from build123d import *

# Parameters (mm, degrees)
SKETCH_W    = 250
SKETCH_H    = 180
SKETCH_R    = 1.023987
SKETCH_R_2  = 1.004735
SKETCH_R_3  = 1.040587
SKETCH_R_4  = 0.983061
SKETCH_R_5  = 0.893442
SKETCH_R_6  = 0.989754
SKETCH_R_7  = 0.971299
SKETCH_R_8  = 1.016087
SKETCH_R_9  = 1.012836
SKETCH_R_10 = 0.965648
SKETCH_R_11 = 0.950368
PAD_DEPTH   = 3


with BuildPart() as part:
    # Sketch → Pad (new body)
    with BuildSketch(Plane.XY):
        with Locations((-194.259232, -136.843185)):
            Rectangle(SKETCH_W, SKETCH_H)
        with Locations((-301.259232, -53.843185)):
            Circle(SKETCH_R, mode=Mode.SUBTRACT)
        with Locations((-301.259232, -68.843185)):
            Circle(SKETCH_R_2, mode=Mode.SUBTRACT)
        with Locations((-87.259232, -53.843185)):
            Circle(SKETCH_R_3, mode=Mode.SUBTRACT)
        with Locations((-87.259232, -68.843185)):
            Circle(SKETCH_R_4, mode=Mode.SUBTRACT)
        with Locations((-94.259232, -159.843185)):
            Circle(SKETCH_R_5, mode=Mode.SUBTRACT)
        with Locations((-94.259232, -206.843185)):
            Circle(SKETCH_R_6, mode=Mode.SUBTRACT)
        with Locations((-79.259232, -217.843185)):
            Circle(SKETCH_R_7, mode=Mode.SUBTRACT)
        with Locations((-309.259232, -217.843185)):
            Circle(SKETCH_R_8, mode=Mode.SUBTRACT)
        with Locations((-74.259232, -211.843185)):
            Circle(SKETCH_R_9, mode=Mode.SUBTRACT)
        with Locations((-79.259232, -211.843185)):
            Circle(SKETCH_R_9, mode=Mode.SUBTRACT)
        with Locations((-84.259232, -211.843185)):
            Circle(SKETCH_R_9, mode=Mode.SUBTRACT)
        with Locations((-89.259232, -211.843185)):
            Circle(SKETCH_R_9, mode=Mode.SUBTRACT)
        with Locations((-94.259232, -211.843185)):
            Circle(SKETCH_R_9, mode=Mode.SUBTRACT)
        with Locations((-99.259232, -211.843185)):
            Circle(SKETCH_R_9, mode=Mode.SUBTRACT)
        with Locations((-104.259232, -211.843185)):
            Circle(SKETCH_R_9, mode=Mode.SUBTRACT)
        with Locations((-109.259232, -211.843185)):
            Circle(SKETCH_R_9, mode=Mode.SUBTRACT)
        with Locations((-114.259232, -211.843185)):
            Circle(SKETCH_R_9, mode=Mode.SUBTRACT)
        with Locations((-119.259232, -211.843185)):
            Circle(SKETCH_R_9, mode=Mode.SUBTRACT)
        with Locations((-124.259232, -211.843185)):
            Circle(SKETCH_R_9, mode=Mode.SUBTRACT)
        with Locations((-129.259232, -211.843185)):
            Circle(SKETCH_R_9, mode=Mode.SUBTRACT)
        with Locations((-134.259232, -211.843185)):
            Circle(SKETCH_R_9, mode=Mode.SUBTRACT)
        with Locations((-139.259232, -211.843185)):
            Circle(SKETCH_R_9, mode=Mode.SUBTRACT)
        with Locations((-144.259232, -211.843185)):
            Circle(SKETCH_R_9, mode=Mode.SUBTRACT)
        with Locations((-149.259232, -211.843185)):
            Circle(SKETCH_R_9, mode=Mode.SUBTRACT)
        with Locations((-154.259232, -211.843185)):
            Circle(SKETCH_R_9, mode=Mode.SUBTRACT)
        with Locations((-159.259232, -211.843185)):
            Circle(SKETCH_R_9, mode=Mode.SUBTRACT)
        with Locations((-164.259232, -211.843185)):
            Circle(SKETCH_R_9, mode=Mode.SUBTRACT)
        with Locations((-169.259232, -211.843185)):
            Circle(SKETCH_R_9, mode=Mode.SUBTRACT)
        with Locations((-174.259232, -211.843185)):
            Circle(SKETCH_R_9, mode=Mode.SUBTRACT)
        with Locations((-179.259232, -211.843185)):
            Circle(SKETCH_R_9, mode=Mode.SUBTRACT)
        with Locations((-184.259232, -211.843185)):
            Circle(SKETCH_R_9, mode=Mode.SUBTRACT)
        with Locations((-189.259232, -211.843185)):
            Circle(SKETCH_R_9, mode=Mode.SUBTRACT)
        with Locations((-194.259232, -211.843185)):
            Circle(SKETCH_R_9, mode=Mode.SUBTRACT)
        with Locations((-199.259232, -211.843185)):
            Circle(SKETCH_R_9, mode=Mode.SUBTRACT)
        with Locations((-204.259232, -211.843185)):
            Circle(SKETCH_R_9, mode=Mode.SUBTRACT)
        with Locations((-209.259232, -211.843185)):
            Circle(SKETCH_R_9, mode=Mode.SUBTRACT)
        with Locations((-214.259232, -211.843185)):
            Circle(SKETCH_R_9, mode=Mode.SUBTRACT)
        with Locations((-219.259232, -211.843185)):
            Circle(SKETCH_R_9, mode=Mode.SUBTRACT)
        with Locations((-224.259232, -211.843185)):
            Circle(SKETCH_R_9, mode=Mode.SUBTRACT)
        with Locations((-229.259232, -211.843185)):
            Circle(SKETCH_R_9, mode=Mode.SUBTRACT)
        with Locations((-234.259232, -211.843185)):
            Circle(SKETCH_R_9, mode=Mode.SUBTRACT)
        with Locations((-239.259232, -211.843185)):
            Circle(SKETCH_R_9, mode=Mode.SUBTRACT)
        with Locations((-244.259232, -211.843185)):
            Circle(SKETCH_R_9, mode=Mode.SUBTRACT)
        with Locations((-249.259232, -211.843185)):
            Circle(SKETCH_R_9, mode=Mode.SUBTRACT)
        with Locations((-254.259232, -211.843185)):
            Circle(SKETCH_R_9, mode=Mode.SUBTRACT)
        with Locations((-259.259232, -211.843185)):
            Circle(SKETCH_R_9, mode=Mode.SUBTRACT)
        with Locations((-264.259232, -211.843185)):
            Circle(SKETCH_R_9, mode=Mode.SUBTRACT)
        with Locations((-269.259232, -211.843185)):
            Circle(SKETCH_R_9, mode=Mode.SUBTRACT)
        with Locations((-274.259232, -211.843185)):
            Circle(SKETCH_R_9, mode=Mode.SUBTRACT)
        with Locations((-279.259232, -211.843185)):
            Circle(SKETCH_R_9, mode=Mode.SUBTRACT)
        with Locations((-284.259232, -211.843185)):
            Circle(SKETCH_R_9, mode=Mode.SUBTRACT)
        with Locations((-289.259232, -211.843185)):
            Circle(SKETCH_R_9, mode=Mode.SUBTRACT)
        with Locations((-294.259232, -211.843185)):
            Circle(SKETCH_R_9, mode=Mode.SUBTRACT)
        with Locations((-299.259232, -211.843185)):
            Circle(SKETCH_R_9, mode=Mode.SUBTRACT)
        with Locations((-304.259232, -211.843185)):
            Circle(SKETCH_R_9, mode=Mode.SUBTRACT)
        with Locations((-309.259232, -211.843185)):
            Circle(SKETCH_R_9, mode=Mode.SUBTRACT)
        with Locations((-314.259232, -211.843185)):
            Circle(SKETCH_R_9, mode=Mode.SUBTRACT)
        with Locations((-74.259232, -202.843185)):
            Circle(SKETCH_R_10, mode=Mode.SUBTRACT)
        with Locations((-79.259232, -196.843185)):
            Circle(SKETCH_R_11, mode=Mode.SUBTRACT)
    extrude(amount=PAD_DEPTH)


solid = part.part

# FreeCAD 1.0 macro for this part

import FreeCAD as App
import Part
import Sketcher

V = App.Vector


def add_polygon(sketch, points):
    """Adds a closed chain of lines whose ends are joined by coincident constraints."""
    first, n = sketch.GeometryCount, len(points)
    for a, b in zip(points, points[1:] + points[:1]):
        sketch.addGeometry(Part.LineSegment(App.Vector(*a, 0), App.Vector(*b, 0)), False)
    for i in range(n):
        sketch.addConstraint(Sketcher.Constraint("Coincident", first + i, 2, first + (i + 1) % n, 1))

doc = App.newDocument("Part")
params = doc.addObject("Spreadsheet::Sheet", "Params")
for row, (alias, value) in enumerate([
    ("sketch1_width", "250 mm"),
    ("sketch1_height", "180 mm"),
    ("pad1_length", "3 mm"),
], start=1):
    params.set(f"A{row}", alias)
    params.set(f"B{row}", "=" + value)
    params.setAlias(f"B{row}", alias)

body = doc.addObject("PartDesign::Body", "Body")

sketch1 = body.newObject("Sketcher::SketchObject", "Sketch")
sketch1.AttachmentSupport = (doc.getObject("XY_Plane"), [""])
sketch1.MapMode = "FlatFace"
add_polygon(sketch1, [(-319.3, -46.8), (-319.3, -226.8), (-69.3, -226.8), (-69.3, -46.8)])
sketch1.addGeometry(Part.Circle(V(-309.3, -217.8, 0), V(0, 0, 1), 1), False)
sketch1.addGeometry(Part.Circle(V(-314.3, -211.8, 0), V(0, 0, 1), 1), False)
sketch1.addGeometry(Part.Circle(V(-309.3, -211.8, 0), V(0, 0, 1), 1), False)
sketch1.addGeometry(Part.Circle(V(-304.3, -211.8, 0), V(0, 0, 1), 1), False)
sketch1.addGeometry(Part.Circle(V(-299.3, -211.8, 0), V(0, 0, 1), 1), False)
sketch1.addGeometry(Part.Circle(V(-294.3, -211.8, 0), V(0, 0, 1), 1), False)
sketch1.addGeometry(Part.Circle(V(-289.3, -211.8, 0), V(0, 0, 1), 1), False)
sketch1.addGeometry(Part.Circle(V(-284.3, -211.8, 0), V(0, 0, 1), 1), False)
sketch1.addGeometry(Part.Circle(V(-279.3, -211.8, 0), V(0, 0, 1), 1), False)
sketch1.addGeometry(Part.Circle(V(-274.3, -211.8, 0), V(0, 0, 1), 1), False)
sketch1.addGeometry(Part.Circle(V(-269.3, -211.8, 0), V(0, 0, 1), 1), False)
sketch1.addGeometry(Part.Circle(V(-264.3, -211.8, 0), V(0, 0, 1), 1), False)
sketch1.addGeometry(Part.Circle(V(-259.3, -211.8, 0), V(0, 0, 1), 1), False)
sketch1.addGeometry(Part.Circle(V(-254.3, -211.8, 0), V(0, 0, 1), 1), False)
sketch1.addGeometry(Part.Circle(V(-249.3, -211.8, 0), V(0, 0, 1), 1), False)
sketch1.addGeometry(Part.Circle(V(-244.3, -211.8, 0), V(0, 0, 1), 1), False)
sketch1.addGeometry(Part.Circle(V(-239.3, -211.8, 0), V(0, 0, 1), 1), False)
sketch1.addGeometry(Part.Circle(V(-234.3, -211.8, 0), V(0, 0, 1), 1), False)
sketch1.addGeometry(Part.Circle(V(-229.3, -211.8, 0), V(0, 0, 1), 1), False)
sketch1.addGeometry(Part.Circle(V(-224.3, -211.8, 0), V(0, 0, 1), 1), False)
sketch1.addGeometry(Part.Circle(V(-219.3, -211.8, 0), V(0, 0, 1), 1), False)
sketch1.addGeometry(Part.Circle(V(-214.3, -211.8, 0), V(0, 0, 1), 1), False)
sketch1.addGeometry(Part.Circle(V(-209.3, -211.8, 0), V(0, 0, 1), 1), False)
sketch1.addGeometry(Part.Circle(V(-204.3, -211.8, 0), V(0, 0, 1), 1), False)
sketch1.addGeometry(Part.Circle(V(-199.3, -211.8, 0), V(0, 0, 1), 1), False)
sketch1.addGeometry(Part.Circle(V(-194.3, -211.8, 0), V(0, 0, 1), 1), False)
sketch1.addGeometry(Part.Circle(V(-189.3, -211.8, 0), V(0, 0, 1), 1), False)
sketch1.addGeometry(Part.Circle(V(-184.3, -211.8, 0), V(0, 0, 1), 1), False)
sketch1.addGeometry(Part.Circle(V(-179.3, -211.8, 0), V(0, 0, 1), 1), False)
sketch1.addGeometry(Part.Circle(V(-174.3, -211.8, 0), V(0, 0, 1), 1), False)
sketch1.addGeometry(Part.Circle(V(-169.3, -211.8, 0), V(0, 0, 1), 1), False)
sketch1.addGeometry(Part.Circle(V(-164.3, -211.8, 0), V(0, 0, 1), 1), False)
sketch1.addGeometry(Part.Circle(V(-159.3, -211.8, 0), V(0, 0, 1), 1), False)
sketch1.addGeometry(Part.Circle(V(-154.3, -211.8, 0), V(0, 0, 1), 1), False)
sketch1.addGeometry(Part.Circle(V(-149.3, -211.8, 0), V(0, 0, 1), 1), False)
sketch1.addGeometry(Part.Circle(V(-144.3, -211.8, 0), V(0, 0, 1), 1), False)
sketch1.addGeometry(Part.Circle(V(-139.3, -211.8, 0), V(0, 0, 1), 1), False)
sketch1.addGeometry(Part.Circle(V(-134.3, -211.8, 0), V(0, 0, 1), 1), False)
sketch1.addGeometry(Part.Circle(V(-129.3, -211.8, 0), V(0, 0, 1), 1), False)
sketch1.addGeometry(Part.Circle(V(-124.3, -211.8, 0), V(0, 0, 1), 1), False)
sketch1.addGeometry(Part.Circle(V(-119.3, -211.8, 0), V(0, 0, 1), 1), False)
sketch1.addGeometry(Part.Circle(V(-114.3, -211.8, 0), V(0, 0, 1), 1), False)
sketch1.addGeometry(Part.Circle(V(-109.3, -211.8, 0), V(0, 0, 1), 1), False)
sketch1.addGeometry(Part.Circle(V(-104.3, -211.8, 0), V(0, 0, 1), 1), False)
sketch1.addGeometry(Part.Circle(V(-99.3, -211.8, 0), V(0, 0, 1), 1), False)
sketch1.addGeometry(Part.Circle(V(-94.3, -211.8, 0), V(0, 0, 1), 1), False)
sketch1.addGeometry(Part.Circle(V(-89.3, -211.8, 0), V(0, 0, 1), 1), False)
sketch1.addGeometry(Part.Circle(V(-79.3, -217.8, 0), V(0, 0, 1), 1), False)
sketch1.addGeometry(Part.Circle(V(-84.3, -211.8, 0), V(0, 0, 1), 1), False)
sketch1.addGeometry(Part.Circle(V(-79.3, -211.8, 0), V(0, 0, 1), 1), False)
sketch1.addGeometry(Part.Circle(V(-74.3, -211.8, 0), V(0, 0, 1), 1), False)
sketch1.addGeometry(Part.Circle(V(-94.3, -206.8, 0), V(0, 0, 1), 1), False)
sketch1.addGeometry(Part.Circle(V(-74.3, -202.8, 0), V(0, 0, 1), 1), False)
sketch1.addGeometry(Part.Circle(V(-79.3, -196.8, 0), V(0, 0, 1), 1), False)
sketch1.addGeometry(Part.Circle(V(-94.3, -159.8, 0), V(0, 0, 1), 0.9), False)
sketch1.addGeometry(Part.Circle(V(-301.3, -68.8, 0), V(0, 0, 1), 1), False)
sketch1.addGeometry(Part.Circle(V(-301.3, -53.8, 0), V(0, 0, 1), 1), False)
sketch1.addGeometry(Part.Circle(V(-87.3, -68.8, 0), V(0, 0, 1), 1), False)
sketch1.addGeometry(Part.Circle(V(-87.3, -53.8, 0), V(0, 0, 1), 1), False)
sketch1.addConstraint(Sketcher.Constraint("Vertical", 0))
sketch1.addConstraint(Sketcher.Constraint("Horizontal", 1))
sketch1.addConstraint(Sketcher.Constraint("Vertical", 2))
sketch1.addConstraint(Sketcher.Constraint("Horizontal", 3))
sketch1.addConstraint(Sketcher.Constraint("Equal", 5, 6))
sketch1.addConstraint(Sketcher.Constraint("Equal", 6, 7))
sketch1.addConstraint(Sketcher.Constraint("Equal", 7, 8))
sketch1.addConstraint(Sketcher.Constraint("Equal", 8, 9))
sketch1.addConstraint(Sketcher.Constraint("Equal", 9, 10))
sketch1.addConstraint(Sketcher.Constraint("Equal", 10, 11))
sketch1.addConstraint(Sketcher.Constraint("Equal", 11, 12))
sketch1.addConstraint(Sketcher.Constraint("Equal", 12, 13))
sketch1.addConstraint(Sketcher.Constraint("Equal", 13, 14))
sketch1.addConstraint(Sketcher.Constraint("Equal", 14, 15))
sketch1.addConstraint(Sketcher.Constraint("Equal", 15, 16))
sketch1.addConstraint(Sketcher.Constraint("Equal", 16, 17))
sketch1.addConstraint(Sketcher.Constraint("Equal", 17, 18))
sketch1.addConstraint(Sketcher.Constraint("Equal", 18, 19))
sketch1.addConstraint(Sketcher.Constraint("Equal", 19, 20))
sketch1.addConstraint(Sketcher.Constraint("Equal", 20, 21))
sketch1.addConstraint(Sketcher.Constraint("Equal", 21, 22))
sketch1.addConstraint(Sketcher.Constraint("Equal", 22, 23))
sketch1.addConstraint(Sketcher.Constraint("Equal", 23, 24))
sketch1.addConstraint(Sketcher.Constraint("Equal", 24, 25))
sketch1.addConstraint(Sketcher.Constraint("Equal", 25, 26))
sketch1.addConstraint(Sketcher.Constraint("Equal", 26, 27))
sketch1.addConstraint(Sketcher.Constraint("Equal", 27, 28))
sketch1.addConstraint(Sketcher.Constraint("Equal", 28, 29))
sketch1.addConstraint(Sketcher.Constraint("Equal", 29, 30))
sketch1.addConstraint(Sketcher.Constraint("Equal", 30, 31))
sketch1.addConstraint(Sketcher.Constraint("Equal", 31, 32))
sketch1.addConstraint(Sketcher.Constraint("Equal", 32, 33))
sketch1.addConstraint(Sketcher.Constraint("Equal", 33, 34))
sketch1.addConstraint(Sketcher.Constraint("Equal", 34, 35))
sketch1.addConstraint(Sketcher.Constraint("Equal", 35, 36))
sketch1.addConstraint(Sketcher.Constraint("Equal", 36, 37))
sketch1.addConstraint(Sketcher.Constraint("Equal", 37, 38))
sketch1.addConstraint(Sketcher.Constraint("Equal", 38, 39))
sketch1.addConstraint(Sketcher.Constraint("Equal", 39, 40))
sketch1.addConstraint(Sketcher.Constraint("Equal", 40, 41))
sketch1.addConstraint(Sketcher.Constraint("Equal", 41, 42))
sketch1.addConstraint(Sketcher.Constraint("Equal", 42, 43))
sketch1.addConstraint(Sketcher.Constraint("Equal", 43, 44))
sketch1.addConstraint(Sketcher.Constraint("Equal", 44, 45))
sketch1.addConstraint(Sketcher.Constraint("Equal", 45, 46))
sketch1.addConstraint(Sketcher.Constraint("Equal", 46, 47))
sketch1.addConstraint(Sketcher.Constraint("Equal", 47, 48))
sketch1.addConstraint(Sketcher.Constraint("Equal", 48, 49))
sketch1.addConstraint(Sketcher.Constraint("Equal", 49, 50))
sketch1.addConstraint(Sketcher.Constraint("Equal", 50, 52))
sketch1.addConstraint(Sketcher.Constraint("Equal", 52, 53))
sketch1.addConstraint(Sketcher.Constraint("Equal", 53, 54))
sketch1.addConstraint(Sketcher.Constraint("Horizontal", 5, 3, 6, 3))
sketch1.addConstraint(Sketcher.Constraint("Horizontal", 6, 3, 7, 3))
sketch1.addConstraint(Sketcher.Constraint("Horizontal", 7, 3, 8, 3))
sketch1.addConstraint(Sketcher.Constraint("Horizontal", 8, 3, 9, 3))
sketch1.addConstraint(Sketcher.Constraint("Horizontal", 9, 3, 10, 3))
sketch1.addConstraint(Sketcher.Constraint("Horizontal", 10, 3, 11, 3))
sketch1.addConstraint(Sketcher.Constraint("Horizontal", 11, 3, 12, 3))
sketch1.addConstraint(Sketcher.Constraint("Horizontal", 12, 3, 13, 3))
sketch1.addConstraint(Sketcher.Constraint("Horizontal", 13, 3, 14, 3))
sketch1.addConstraint(Sketcher.Constraint("Horizontal", 14, 3, 15, 3))
sketch1.addConstraint(Sketcher.Constraint("Horizontal", 15, 3, 16, 3))
sketch1.addConstraint(Sketcher.Constraint("Horizontal", 16, 3, 17, 3))
sketch1.addConstraint(Sketcher.Constraint("Horizontal", 17, 3, 18, 3))
sketch1.addConstraint(Sketcher.Constraint("Horizontal", 18, 3, 19, 3))
sketch1.addConstraint(Sketcher.Constraint("Horizontal", 19, 3, 20, 3))
sketch1.addConstraint(Sketcher.Constraint("Horizontal", 20, 3, 21, 3))
sketch1.addConstraint(Sketcher.Constraint("Horizontal", 21, 3, 22, 3))
sketch1.addConstraint(Sketcher.Constraint("Horizontal", 22, 3, 23, 3))
sketch1.addConstraint(Sketcher.Constraint("Horizontal", 23, 3, 24, 3))
sketch1.addConstraint(Sketcher.Constraint("Horizontal", 24, 3, 25, 3))
sketch1.addConstraint(Sketcher.Constraint("Horizontal", 25, 3, 26, 3))
sketch1.addConstraint(Sketcher.Constraint("Horizontal", 26, 3, 27, 3))
sketch1.addConstraint(Sketcher.Constraint("Horizontal", 27, 3, 28, 3))
sketch1.addConstraint(Sketcher.Constraint("Horizontal", 28, 3, 29, 3))
sketch1.addConstraint(Sketcher.Constraint("Horizontal", 29, 3, 30, 3))
sketch1.addConstraint(Sketcher.Constraint("Horizontal", 30, 3, 31, 3))
sketch1.addConstraint(Sketcher.Constraint("Horizontal", 31, 3, 32, 3))
sketch1.addConstraint(Sketcher.Constraint("Horizontal", 32, 3, 33, 3))
sketch1.addConstraint(Sketcher.Constraint("Horizontal", 33, 3, 34, 3))
sketch1.addConstraint(Sketcher.Constraint("Horizontal", 34, 3, 35, 3))
sketch1.addConstraint(Sketcher.Constraint("Horizontal", 35, 3, 36, 3))
sketch1.addConstraint(Sketcher.Constraint("Horizontal", 36, 3, 37, 3))
sketch1.addConstraint(Sketcher.Constraint("Horizontal", 37, 3, 38, 3))
sketch1.addConstraint(Sketcher.Constraint("Horizontal", 38, 3, 39, 3))
sketch1.addConstraint(Sketcher.Constraint("Horizontal", 39, 3, 40, 3))
sketch1.addConstraint(Sketcher.Constraint("Horizontal", 40, 3, 41, 3))
sketch1.addConstraint(Sketcher.Constraint("Horizontal", 41, 3, 42, 3))
sketch1.addConstraint(Sketcher.Constraint("Horizontal", 42, 3, 43, 3))
sketch1.addConstraint(Sketcher.Constraint("Horizontal", 43, 3, 44, 3))
sketch1.addConstraint(Sketcher.Constraint("Horizontal", 44, 3, 45, 3))
sketch1.addConstraint(Sketcher.Constraint("Horizontal", 45, 3, 46, 3))
sketch1.addConstraint(Sketcher.Constraint("Horizontal", 46, 3, 47, 3))
sketch1.addConstraint(Sketcher.Constraint("Horizontal", 47, 3, 48, 3))
sketch1.addConstraint(Sketcher.Constraint("Horizontal", 48, 3, 49, 3))
sketch1.addConstraint(Sketcher.Constraint("Horizontal", 49, 3, 50, 3))
sketch1.addConstraint(Sketcher.Constraint("Horizontal", 4, 3, 51, 3))
sketch1.addConstraint(Sketcher.Constraint("Horizontal", 50, 3, 52, 3))
sketch1.addConstraint(Sketcher.Constraint("Horizontal", 52, 3, 53, 3))
sketch1.addConstraint(Sketcher.Constraint("Horizontal", 53, 3, 54, 3))
sketch1.addConstraint(Sketcher.Constraint("Horizontal", 59, 3, 61, 3))
sketch1.addConstraint(Sketcher.Constraint("Horizontal", 60, 3, 62, 3))
sketch1.addConstraint(Sketcher.Constraint("Vertical", 4, 3, 6, 3))
sketch1.addConstraint(Sketcher.Constraint("Vertical", 51, 3, 53, 3))
sketch1.addConstraint(Sketcher.Constraint("Vertical", 49, 3, 55, 3))
sketch1.addConstraint(Sketcher.Constraint("Vertical", 54, 3, 56, 3))
sketch1.addConstraint(Sketcher.Constraint("Vertical", 53, 3, 57, 3))
sketch1.addConstraint(Sketcher.Constraint("Vertical", 55, 3, 58, 3))
sketch1.addConstraint(Sketcher.Constraint("Vertical", 59, 3, 60, 3))
sketch1.addConstraint(Sketcher.Constraint("Vertical", 61, 3, 62, 3))
sketch1.addConstraint(Sketcher.Constraint("DistanceX", 1, 1, 1, 2, 250.0))
sketch1.addConstraint(Sketcher.Constraint("DistanceY", 0, 2, 0, 1, 180.0))
sketch1.addConstraint(Sketcher.Constraint("Diameter", 59, 2.00947))
sketch1.addConstraint(Sketcher.Constraint("Diameter", 61, 1.966122))
sketch1.addConstraint(Sketcher.Constraint("Diameter", 4, 2.032174))
sketch1.addConstraint(Sketcher.Constraint("Diameter", 5, 2.025672))
sketch1.addConstraint(Sketcher.Constraint("Diameter", 51, 1.942598))
sketch1.addConstraint(Sketcher.Constraint("Diameter", 55, 1.979508))
sketch1.addConstraint(Sketcher.Constraint("Diameter", 56, 1.931296))
sketch1.addConstraint(Sketcher.Constraint("Diameter", 57, 1.900736))
sketch1.addConstraint(Sketcher.Constraint("Diameter", 58, 1.786884))
sketch1.addConstraint(Sketcher.Constraint("Diameter", 60, 2.047974))
sketch1.addConstraint(Sketcher.Constraint("Diameter", 62, 2.081174))
sketch1.addConstraint(Sketcher.Constraint("DistanceX", 4, 3, -1, 1, 309.259232))
sketch1.addConstraint(Sketcher.Constraint("DistanceX", 5, 3, -1, 1, 314.259232))
sketch1.addConstraint(Sketcher.Constraint("DistanceX", 7, 3, -1, 1, 304.259232))
sketch1.addConstraint(Sketcher.Constraint("DistanceX", 8, 3, -1, 1, 299.259232))
sketch1.addConstraint(Sketcher.Constraint("DistanceX", 9, 3, -1, 1, 294.259232))
sketch1.addConstraint(Sketcher.Constraint("DistanceX", 10, 3, -1, 1, 289.259232))
sketch1.addConstraint(Sketcher.Constraint("DistanceX", 11, 3, -1, 1, 284.259232))
sketch1.addConstraint(Sketcher.Constraint("DistanceX", 12, 3, -1, 1, 279.259232))
sketch1.addConstraint(Sketcher.Constraint("DistanceX", 13, 3, -1, 1, 274.259232))
sketch1.addConstraint(Sketcher.Constraint("DistanceX", 14, 3, -1, 1, 269.259232))
sketch1.addConstraint(Sketcher.Constraint("DistanceX", 15, 3, -1, 1, 264.259232))
sketch1.addConstraint(Sketcher.Constraint("DistanceX", 16, 3, -1, 1, 259.259232))
sketch1.addConstraint(Sketcher.Constraint("DistanceX", 17, 3, -1, 1, 254.259232))
sketch1.addConstraint(Sketcher.Constraint("DistanceX", 18, 3, -1, 1, 249.259232))
sketch1.addConstraint(Sketcher.Constraint("DistanceX", 19, 3, -1, 1, 244.259232))
sketch1.addConstraint(Sketcher.Constraint("DistanceX", 20, 3, -1, 1, 239.259232))
sketch1.addConstraint(Sketcher.Constraint("DistanceX", 21, 3, -1, 1, 234.259232))
sketch1.addConstraint(Sketcher.Constraint("DistanceX", 22, 3, -1, 1, 229.259232))
sketch1.addConstraint(Sketcher.Constraint("DistanceX", 23, 3, -1, 1, 224.259232))
sketch1.addConstraint(Sketcher.Constraint("DistanceX", 24, 3, -1, 1, 219.259232))
sketch1.addConstraint(Sketcher.Constraint("DistanceX", 25, 3, -1, 1, 214.259232))
sketch1.addConstraint(Sketcher.Constraint("DistanceX", 26, 3, -1, 1, 209.259232))
sketch1.addConstraint(Sketcher.Constraint("DistanceX", 27, 3, -1, 1, 204.259232))
sketch1.addConstraint(Sketcher.Constraint("DistanceX", 28, 3, -1, 1, 199.259232))
sketch1.addConstraint(Sketcher.Constraint("DistanceX", 29, 3, -1, 1, 194.259232))
sketch1.addConstraint(Sketcher.Constraint("DistanceX", 30, 3, -1, 1, 189.259232))
sketch1.addConstraint(Sketcher.Constraint("DistanceX", 31, 3, -1, 1, 184.259232))
sketch1.addConstraint(Sketcher.Constraint("DistanceX", 32, 3, -1, 1, 179.259232))
sketch1.addConstraint(Sketcher.Constraint("DistanceX", 33, 3, -1, 1, 174.259232))
sketch1.addConstraint(Sketcher.Constraint("DistanceX", 34, 3, -1, 1, 169.259232))
sketch1.addConstraint(Sketcher.Constraint("DistanceX", 35, 3, -1, 1, 164.259232))
sketch1.addConstraint(Sketcher.Constraint("DistanceX", 36, 3, -1, 1, 159.259232))
sketch1.addConstraint(Sketcher.Constraint("DistanceX", 37, 3, -1, 1, 154.259232))
sketch1.addConstraint(Sketcher.Constraint("DistanceX", 38, 3, -1, 1, 149.259232))
sketch1.addConstraint(Sketcher.Constraint("DistanceX", 39, 3, -1, 1, 144.259232))
sketch1.addConstraint(Sketcher.Constraint("DistanceX", 40, 3, -1, 1, 139.259232))
sketch1.addConstraint(Sketcher.Constraint("DistanceX", 41, 3, -1, 1, 134.259232))
sketch1.addConstraint(Sketcher.Constraint("DistanceX", 42, 3, -1, 1, 129.259232))
sketch1.addConstraint(Sketcher.Constraint("DistanceX", 43, 3, -1, 1, 124.259232))
sketch1.addConstraint(Sketcher.Constraint("DistanceX", 44, 3, -1, 1, 119.259232))
sketch1.addConstraint(Sketcher.Constraint("DistanceX", 45, 3, -1, 1, 114.259232))
sketch1.addConstraint(Sketcher.Constraint("DistanceX", 46, 3, -1, 1, 109.259232))
sketch1.addConstraint(Sketcher.Constraint("DistanceX", 47, 3, -1, 1, 104.259232))
sketch1.addConstraint(Sketcher.Constraint("DistanceX", 48, 3, -1, 1, 99.259232))
sketch1.addConstraint(Sketcher.Constraint("DistanceX", 49, 3, -1, 1, 94.259232))
sketch1.addConstraint(Sketcher.Constraint("DistanceX", 50, 3, -1, 1, 89.259232))
sketch1.addConstraint(Sketcher.Constraint("DistanceX", 51, 3, -1, 1, 79.259232))
sketch1.addConstraint(Sketcher.Constraint("DistanceX", 52, 3, -1, 1, 84.259232))
sketch1.addConstraint(Sketcher.Constraint("DistanceX", 54, 3, -1, 1, 74.259232))
sketch1.addConstraint(Sketcher.Constraint("DistanceX", 59, 3, -1, 1, 301.259232))
sketch1.addConstraint(Sketcher.Constraint("DistanceX", 61, 3, -1, 1, 87.259232))
sketch1.addConstraint(Sketcher.Constraint("DistanceX", 0, 2, -1, 1, 319.259232))
sketch1.addConstraint(Sketcher.Constraint("DistanceY", 4, 3, -1, 1, 217.843185))
sketch1.addConstraint(Sketcher.Constraint("DistanceY", 5, 3, -1, 1, 211.843185))
sketch1.addConstraint(Sketcher.Constraint("DistanceY", 55, 3, -1, 1, 206.843185))
sketch1.addConstraint(Sketcher.Constraint("DistanceY", 56, 3, -1, 1, 202.843185))
sketch1.addConstraint(Sketcher.Constraint("DistanceY", 57, 3, -1, 1, 196.843185))
sketch1.addConstraint(Sketcher.Constraint("DistanceY", 58, 3, -1, 1, 159.843185))
sketch1.addConstraint(Sketcher.Constraint("DistanceY", 59, 3, -1, 1, 68.843185))
sketch1.addConstraint(Sketcher.Constraint("DistanceY", 60, 3, -1, 1, 53.843185))
sketch1.addConstraint(Sketcher.Constraint("DistanceY", 0, 2, -1, 1, 226.843185))
sketch1.setExpression("Constraints[115]", "Params.sketch1_width")
sketch1.setExpression("Constraints[116]", "Params.sketch1_height")
pad1 = body.newObject("PartDesign::Pad", "Pad")
pad1.Profile = sketch1
pad1.setExpression("Length", "Params.pad1_length")

doc.recompute()
